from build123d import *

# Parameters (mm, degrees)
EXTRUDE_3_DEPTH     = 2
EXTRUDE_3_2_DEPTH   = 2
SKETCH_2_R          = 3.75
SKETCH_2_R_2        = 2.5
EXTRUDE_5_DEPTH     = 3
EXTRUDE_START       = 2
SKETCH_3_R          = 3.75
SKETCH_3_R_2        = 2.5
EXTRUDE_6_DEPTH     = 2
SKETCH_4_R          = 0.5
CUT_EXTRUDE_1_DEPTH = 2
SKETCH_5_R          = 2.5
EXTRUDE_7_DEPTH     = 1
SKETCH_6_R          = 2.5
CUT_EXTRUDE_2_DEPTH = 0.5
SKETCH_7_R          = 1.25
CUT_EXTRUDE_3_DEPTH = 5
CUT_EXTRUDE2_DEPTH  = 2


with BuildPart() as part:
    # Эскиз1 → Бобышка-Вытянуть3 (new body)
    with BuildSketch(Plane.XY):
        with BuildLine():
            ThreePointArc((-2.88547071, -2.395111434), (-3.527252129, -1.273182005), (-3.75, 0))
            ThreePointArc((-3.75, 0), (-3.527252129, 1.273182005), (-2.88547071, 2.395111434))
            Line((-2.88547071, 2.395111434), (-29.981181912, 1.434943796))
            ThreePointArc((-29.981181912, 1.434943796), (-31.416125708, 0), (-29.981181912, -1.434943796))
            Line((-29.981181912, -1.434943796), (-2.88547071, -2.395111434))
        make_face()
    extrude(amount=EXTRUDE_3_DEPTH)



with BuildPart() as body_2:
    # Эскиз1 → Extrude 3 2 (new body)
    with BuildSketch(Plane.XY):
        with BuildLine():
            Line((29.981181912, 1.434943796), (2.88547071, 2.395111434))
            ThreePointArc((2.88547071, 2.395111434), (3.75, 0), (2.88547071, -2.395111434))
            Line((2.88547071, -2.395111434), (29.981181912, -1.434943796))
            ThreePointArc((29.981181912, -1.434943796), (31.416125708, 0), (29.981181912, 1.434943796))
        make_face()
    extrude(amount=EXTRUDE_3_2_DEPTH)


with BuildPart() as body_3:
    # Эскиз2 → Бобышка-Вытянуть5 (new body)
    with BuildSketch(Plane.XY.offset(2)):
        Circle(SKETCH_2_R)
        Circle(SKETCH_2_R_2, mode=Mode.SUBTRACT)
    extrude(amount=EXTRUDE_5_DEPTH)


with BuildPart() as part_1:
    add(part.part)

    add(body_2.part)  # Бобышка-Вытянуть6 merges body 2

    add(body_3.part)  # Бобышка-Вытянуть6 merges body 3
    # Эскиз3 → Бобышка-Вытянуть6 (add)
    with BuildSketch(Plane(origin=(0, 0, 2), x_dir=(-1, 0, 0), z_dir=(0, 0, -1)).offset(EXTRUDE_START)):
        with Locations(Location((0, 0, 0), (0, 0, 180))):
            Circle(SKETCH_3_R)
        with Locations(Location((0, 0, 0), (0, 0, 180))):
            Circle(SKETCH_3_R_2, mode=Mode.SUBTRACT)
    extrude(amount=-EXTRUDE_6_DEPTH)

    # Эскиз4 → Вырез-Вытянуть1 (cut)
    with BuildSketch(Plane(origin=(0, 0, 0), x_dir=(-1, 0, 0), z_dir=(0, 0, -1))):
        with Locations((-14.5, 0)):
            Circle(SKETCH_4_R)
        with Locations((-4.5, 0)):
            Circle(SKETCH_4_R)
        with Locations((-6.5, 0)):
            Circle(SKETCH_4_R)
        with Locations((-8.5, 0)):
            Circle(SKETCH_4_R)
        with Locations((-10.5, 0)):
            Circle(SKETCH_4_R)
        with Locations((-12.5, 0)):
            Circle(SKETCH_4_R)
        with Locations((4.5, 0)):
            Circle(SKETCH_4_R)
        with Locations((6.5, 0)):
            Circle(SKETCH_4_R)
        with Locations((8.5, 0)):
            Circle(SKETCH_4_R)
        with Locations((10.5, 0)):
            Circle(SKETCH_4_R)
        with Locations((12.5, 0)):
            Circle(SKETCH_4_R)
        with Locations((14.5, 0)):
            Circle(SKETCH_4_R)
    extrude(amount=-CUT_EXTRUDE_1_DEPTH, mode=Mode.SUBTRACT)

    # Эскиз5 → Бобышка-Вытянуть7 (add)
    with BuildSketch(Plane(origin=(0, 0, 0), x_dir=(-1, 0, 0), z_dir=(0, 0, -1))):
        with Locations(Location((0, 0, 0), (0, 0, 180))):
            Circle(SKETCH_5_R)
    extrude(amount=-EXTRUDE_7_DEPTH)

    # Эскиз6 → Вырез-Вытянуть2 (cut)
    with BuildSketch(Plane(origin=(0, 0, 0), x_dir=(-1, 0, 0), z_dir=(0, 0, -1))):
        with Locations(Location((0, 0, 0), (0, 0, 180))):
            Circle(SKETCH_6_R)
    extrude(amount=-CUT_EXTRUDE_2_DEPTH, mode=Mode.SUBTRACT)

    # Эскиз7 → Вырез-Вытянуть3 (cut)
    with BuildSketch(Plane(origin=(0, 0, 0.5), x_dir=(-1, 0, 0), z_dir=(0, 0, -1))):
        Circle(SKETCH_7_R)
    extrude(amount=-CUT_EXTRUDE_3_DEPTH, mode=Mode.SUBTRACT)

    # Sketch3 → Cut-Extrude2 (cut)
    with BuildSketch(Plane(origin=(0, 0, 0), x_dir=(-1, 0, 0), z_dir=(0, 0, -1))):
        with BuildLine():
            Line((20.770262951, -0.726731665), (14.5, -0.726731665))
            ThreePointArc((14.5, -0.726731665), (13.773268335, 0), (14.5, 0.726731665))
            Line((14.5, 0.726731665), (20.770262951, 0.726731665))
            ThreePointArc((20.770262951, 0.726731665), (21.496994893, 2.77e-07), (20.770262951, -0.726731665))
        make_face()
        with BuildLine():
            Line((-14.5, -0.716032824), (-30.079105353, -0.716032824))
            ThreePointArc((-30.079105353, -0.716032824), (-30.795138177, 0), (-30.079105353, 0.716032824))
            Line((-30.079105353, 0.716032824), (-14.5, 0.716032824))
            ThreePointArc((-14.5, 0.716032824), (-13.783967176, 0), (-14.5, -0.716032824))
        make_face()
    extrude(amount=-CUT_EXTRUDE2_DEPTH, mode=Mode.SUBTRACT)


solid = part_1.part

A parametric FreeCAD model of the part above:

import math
import FreeCAD as App
import Part
import Sketcher

V = App.Vector

doc = App.newDocument("Part")
body = doc.addObject("PartDesign::Body", "Body")

# Sketch on XY plane
sketch1 = body.newObject("Sketcher::SketchObject", "Sketch")
sketch1.AttachmentSupport = (doc.getObject("XY_Plane"), [""])
sketch1.MapMode = "FlatFace"
sketch1.addGeometry(Part.ArcOfCircle(Part.Circle(V(0, 0, 0), V(0, 0, 1), 3.8), math.radians(180), math.radians(220)), False)
sketch1.addGeometry(Part.ArcOfCircle(Part.Circle(V(0, 0, 0), V(0, 0, 1), 3.8), math.radians(140), math.radians(180)), False)
sketch1.addGeometry(Part.LineSegment(V(-2.9, 2.4, 0), V(-30, 1.4, 0)), False)
sketch1.addGeometry(Part.ArcOfCircle(Part.Circle(V(-30, 0, 0), V(0, 0, 1), 1.4), math.radians(90), math.radians(270)), False)
sketch1.addGeometry(Part.LineSegment(V(-30, -1.4, 0), V(-2.9, -2.4, 0)), False)
sketch1.addConstraint(Sketcher.Constraint("Tangent", 0, 1, 1, 2))
sketch1.addConstraint(Sketcher.Constraint("Coincident", 1, 1, 2, 1))
sketch1.addConstraint(Sketcher.Constraint("Coincident", 2, 2, 3, 1))
sketch1.addConstraint(Sketcher.Constraint("Coincident", 3, 2, 4, 1))
sketch1.addConstraint(Sketcher.Constraint("Coincident", 4, 2, 0, 2))
sketch1.addConstraint(Sketcher.Constraint("Coincident", 0, 3, -1, 1))
sketch1.addConstraint(Sketcher.Constraint("Equal", 0, 1))
sketch1.addConstraint(Sketcher.Constraint("Symmetric", 2, 2, 3, 2, -1))
sketch1.addConstraint(Sketcher.Constraint("PointOnObject", 0, 1, -1))
sketch1.addConstraint(Sketcher.Constraint("Vertical", 3, 3, 2, 2))
sketch1.addConstraint(Sketcher.Constraint("Vertical", 1, 1, 4, 2))
sketch1.addConstraint(Sketcher.Constraint("Radius", 0, 3.75))
sketch1.addConstraint(Sketcher.Constraint("Radius", 3, 1.434944))
sketch1.addConstraint(Sketcher.Constraint("Distance", 2, 27.112718))
sketch1.addConstraint(Sketcher.Constraint("DistanceX", 3, 3, -1, 1, 29.981182))
pad1 = body.newObject("PartDesign::Pad", "Pad")
pad1.Profile = sketch1
pad1.Length = 2
body2 = doc.addObject("PartDesign::Body", "Body001")

# Sketch on XY plane
sketch2 = body2.newObject("Sketcher::SketchObject", "Sketch001")
sketch2.AttachmentSupport = (doc.getObject("XY_Plane001"), [""])
sketch2.MapMode = "FlatFace"
sketch2.addGeometry(Part.LineSegment(V(30, 1.4, 0), V(2.9, 2.4, 0)), False)
sketch2.addGeometry(Part.ArcOfCircle(Part.Circle(V(0, 0, 0), V(0, 0, 1), 3.8), math.radians(-40), math.radians(40)), False)
sketch2.addGeometry(Part.LineSegment(V(2.9, -2.4, 0), V(30, -1.4, 0)), False)
sketch2.addGeometry(Part.ArcOfCircle(Part.Circle(V(30, 0, 0), V(0, 0, 1), 1.4), math.radians(-90), math.radians(90)), False)
sketch2.addConstraint(Sketcher.Constraint("Coincident", 0, 2, 1, 2))
sketch2.addConstraint(Sketcher.Constraint("Coincident", 1, 1, 2, 1))
sketch2.addConstraint(Sketcher.Constraint("Coincident", 2, 2, 3, 1))
sketch2.addConstraint(Sketcher.Constraint("Coincident", 3, 2, 0, 1))
sketch2.addConstraint(Sketcher.Constraint("Coincident", 1, 3, -1, 1))
sketch2.addConstraint(Sketcher.Constraint("Symmetric", 2, 2, 3, 2, -1))
sketch2.addConstraint(Sketcher.Constraint("Vertical", 0, 2, 1, 1))
sketch2.addConstraint(Sketcher.Constraint("Vertical", 3, 3, 2, 2))
sketch2.addConstraint(Sketcher.Constraint("Radius", 1, 3.75))
sketch2.addConstraint(Sketcher.Constraint("Radius", 3, 1.434944))
sketch2.addConstraint(Sketcher.Constraint("Distance", 0, 27.112718))
sketch2.addConstraint(Sketcher.Constraint("DistanceX", -1, 1, 3, 3, 29.981182))
pad2 = body2.newObject("PartDesign::Pad", "Pad001")
pad2.Profile = sketch2
pad2.Length = 2
body3 = doc.addObject("PartDesign::Body", "Body002")

# Sketch on XY plane
sketch3 = body3.newObject("Sketcher::SketchObject", "Sketch002")
sketch3.AttachmentSupport = (doc.getObject("XY_Plane002"), [""])
sketch3.MapMode = "FlatFace"
sketch3.AttachmentOffset = App.Placement(V(0, 0, 2), App.Rotation())
sketch3.addGeometry(Part.Circle(V(0, 0, 0), V(0, 0, 1), 3.8), False)
sketch3.addGeometry(Part.Circle(V(0, 0, 0), V(0, 0, 1), 2.5), False)
sketch3.addConstraint(Sketcher.Constraint("Coincident", 0, 3, -1, 1))
sketch3.addConstraint(Sketcher.Constraint("Coincident", 1, 3, -1, 1))
sketch3.addConstraint(Sketcher.Constraint("Diameter", 1, 5.0))
sketch3.addConstraint(Sketcher.Constraint("Diameter", 0, 7.5))
pad3 = body3.newObject("PartDesign::Pad", "Pad002")
pad3.Profile = sketch3
pad3.Length = 3
body.AllowCompound = True
doc.recompute()

boolean = body.newObject("PartDesign::Boolean", "Boolean")
boolean.Type = "Fuse"
boolean.addObjects([body2])
doc.recompute()

boolean2 = body.newObject("PartDesign::Boolean", "Boolean001")
boolean2.Type = "Fuse"
boolean2.addObjects([body3])

# Sketch on XY plane
sketch4 = body.newObject("Sketcher::SketchObject", "Sketch003")
sketch4.AttachmentSupport = (doc.getObject("XY_Plane"), [""])
sketch4.MapMode = "FlatFace"
sketch4.addGeometry(Part.Circle(V(0, 0, 0), V(0, 0, 1), 3.8), False)
sketch4.addGeometry(Part.Circle(V(0, 0, 0), V(0, 0, 1), 2.5), False)
sketch4.addConstraint(Sketcher.Constraint("Coincident", 0, 3, -1, 1))
sketch4.addConstraint(Sketcher.Constraint("Coincident", 1, 3, -1, 1))
sketch4.addConstraint(Sketcher.Constraint("Diameter", 1, 5.0))
sketch4.addConstraint(Sketcher.Constraint("Diameter", 0, 7.5))
pad4 = body.newObject("PartDesign::Pad", "Pad003")
pad4.Profile = sketch4
pad4.Length = 2

# Sketch on XY plane
sketch5 = body.newObject("Sketcher::SketchObject", "Sketch004")
sketch5.AttachmentSupport = (doc.getObject("XY_Plane"), [""])
sketch5.MapMode = "FlatFace"
sketch5.addGeometry(Part.Circle(V(14.5, 0, 0), V(0, 0, 1), 0.5), False)
sketch5.addGeometry(Part.Circle(V(4.5, 0, 0), V(0, 0, 1), 0.5), False)
sketch5.addGeometry(Part.Circle(V(6.5, 0, 0), V(0, 0, 1), 0.5), False)
sketch5.addGeometry(Part.Circle(V(8.5, 0, 0), V(0, 0, 1), 0.5), False)
sketch5.addGeometry(Part.Circle(V(10.5, 0, 0), V(0, 0, 1), 0.5), False)
sketch5.addGeometry(Part.Circle(V(12.5, 0, 0), V(0, 0, 1), 0.5), False)
sketch5.addGeometry(Part.Circle(V(-4.5, 0, 0), V(0, 0, 1), 0.5), False)
sketch5.addGeometry(Part.Circle(V(-6.5, 0, 0), V(0, 0, 1), 0.5), False)
sketch5.addGeometry(Part.Circle(V(-8.5, 0, 0), V(0, 0, 1), 0.5), False)
sketch5.addGeometry(Part.Circle(V(-10.5, 0, 0), V(0, 0, 1), 0.5), False)
sketch5.addGeometry(Part.Circle(V(-12.5, 0, 0), V(0, 0, 1), 0.5), False)
sketch5.addGeometry(Part.Circle(V(-14.5, 0, 0), V(0, 0, 1), 0.5), False)
sketch5.addConstraint(Sketcher.Constraint("Equal", 0, 1))
sketch5.addConstraint(Sketcher.Constraint("Equal", 1, 2))
sketch5.addConstraint(Sketcher.Constraint("Equal", 2, 3))
sketch5.addConstraint(Sketcher.Constraint("Equal", 3, 4))
sketch5.addConstraint(Sketcher.Constraint("Equal", 4, 5))
sketch5.addConstraint(Sketcher.Constraint("Equal", 5, 6))
sketch5.addConstraint(Sketcher.Constraint("Equal", 6, 7))
sketch5.addConstraint(Sketcher.Constraint("Equal", 7, 8))
sketch5.addConstraint(Sketcher.Constraint("Equal", 8, 9))
sketch5.addConstraint(Sketcher.Constraint("Equal", 9, 10))
sketch5.addConstraint(Sketcher.Constraint("Equal", 10, 11))
sketch5.addConstraint(Sketcher.Constraint("Symmetric", 1, 3, 6, 3, -1, 1))
sketch5.addConstraint(Sketcher.Constraint("Symmetric", 2, 3, 7, 3, -1, 1))
sketch5.addConstraint(Sketcher.Constraint("Symmetric", 3, 3, 8, 3, -1, 1))
sketch5.addConstraint(Sketcher.Constraint("Symmetric", 4, 3, 9, 3, -1, 1))
sketch5.addConstraint(Sketcher.Constraint("Symmetric", 5, 3, 10, 3, -1, 1))
sketch5.addConstraint(Sketcher.Constraint("Symmetric", 0, 3, 11, 3, -1, 1))
sketch5.addConstraint(Sketcher.Constraint("PointOnObject", 0, 3, -1))
sketch5.addConstraint(Sketcher.Constraint("PointOnObject", 1, 3, -1))
sketch5.addConstraint(Sketcher.Constraint("PointOnObject", 2, 3, -1))
sketch5.addConstraint(Sketcher.Constraint("PointOnObject", 3, 3, -1))
sketch5.addConstraint(Sketcher.Constraint("PointOnObject", 4, 3, -1))
sketch5.addConstraint(Sketcher.Constraint("PointOnObject", 5, 3, -1))
sketch5.addConstraint(Sketcher.Constraint("Diameter", 0, 1.0))
sketch5.addConstraint(Sketcher.Constraint("DistanceX", 1, 3, 0, 3, 10.0))
sketch5.addConstraint(Sketcher.Constraint("DistanceX", 1, 3, 2, 3, 2.0))
sketch5.addConstraint(Sketcher.Constraint("DistanceX", 2, 3, 3, 3, 2.0))
sketch5.addConstraint(Sketcher.Constraint("DistanceX", 3, 3, 4, 3, 2.0))
sketch5.addConstraint(Sketcher.Constraint("DistanceX", 5, 3, 0, 3, 2.0))
sketch5.addConstraint(Sketcher.Constraint("DistanceX", 6, 3, 1, 3, 9.0))
pocket1 = body.newObject("PartDesign::Pocket", "Pocket")
pocket1.Profile = sketch5
pocket1.Length = 2
pocket1.Reversed = True

# Sketch on XY plane
sketch6 = body.newObject("Sketcher::SketchObject", "Sketch005")
sketch6.AttachmentSupport = (doc.getObject("XY_Plane"), [""])
sketch6.MapMode = "FlatFace"
sketch6.addGeometry(Part.Circle(V(0, 0, 0), V(0, 0, 1), 2.5), False)
sketch6.addConstraint(Sketcher.Constraint("Coincident", 0, 3, -1, 1))
sketch6.addConstraint(Sketcher.Constraint("Diameter", 0, 5.0))
pad5 = body.newObject("PartDesign::Pad", "Pad004")
pad5.Profile = sketch6
pad5.Length = 1

# Sketch on XY plane
sketch7 = body.newObject("Sketcher::SketchObject", "Sketch006")
sketch7.AttachmentSupport = (doc.getObject("XY_Plane"), [""])
sketch7.MapMode = "FlatFace"
sketch7.addGeometry(Part.Circle(V(0, 0, 0), V(0, 0, 1), 2.5), False)
sketch7.addConstraint(Sketcher.Constraint("Coincident", 0, 3, -1, 1))
sketch7.addConstraint(Sketcher.Constraint("Diameter", 0, 5.0))
pocket2 = body.newObject("PartDesign::Pocket", "Pocket001")
pocket2.Profile = sketch7
pocket2.Length = 0.5
pocket2.Reversed = True

# Sketch on XY plane
sketch8 = body.newObject("Sketcher::SketchObject", "Sketch007")
sketch8.AttachmentSupport = (doc.getObject("XY_Plane"), [""])
sketch8.MapMode = "FlatFace"
sketch8.AttachmentOffset = App.Placement(V(0, 0, 0.5), App.Rotation())
sketch8.addGeometry(Part.Circle(V(0, 0, 0), V(0, 0, 1), 1.2), False)
sketch8.addConstraint(Sketcher.Constraint("Coincident", 0, 3, -1, 1))
sketch8.addConstraint(Sketcher.Constraint("Diameter", 0, 2.5))
pocket3 = body.newObject("PartDesign::Pocket", "Pocket002")
pocket3.Profile = sketch8
pocket3.Length = 5
pocket3.Reversed = True

# Sketch on XY plane
sketch9 = body.newObject("Sketcher::SketchObject", "Sketch008")
sketch9.AttachmentSupport = (doc.getObject("XY_Plane"), [""])
sketch9.MapMode = "FlatFace"
sketch9.addGeometry(Part.LineSegment(V(-14.5, -0.7, 0), V(-20.8, -0.7, 0)), False)
sketch9.addGeometry(Part.ArcOfCircle(Part.Circle(V(-20.8, 0, 0), V(0, 0, 1), 0.7), math.radians(90), math.radians(270)), False)
sketch9.addGeometry(Part.LineSegment(V(-20.8, 0.7, 0), V(-14.5, 0.7, 0)), False)
sketch9.addGeometry(Part.ArcOfCircle(Part.Circle(V(-14.5, 0, 0), V(0, 0, 1), 0.7), math.radians(-90), math.radians(90)), False)
sketch9.addGeometry(Part.LineSegment(V(30.1, -0.7, 0), V(14.5, -0.7, 0)), False)
sketch9.addGeometry(Part.ArcOfCircle(Part.Circle(V(14.5, 0, 0), V(0, 0, 1), 0.7), math.radians(90), math.radians(270)), False)
sketch9.addGeometry(Part.LineSegment(V(14.5, 0.7, 0), V(30.1, 0.7, 0)), False)
sketch9.addGeometry(Part.ArcOfCircle(Part.Circle(V(30.1, 0, 0), V(0, 0, 1), 0.7), math.radians(-90), math.radians(90)), False)
sketch9.addConstraint(Sketcher.Constraint("Tangent", 0, 2, 1, 2))
sketch9.addConstraint(Sketcher.Constraint("Tangent", 1, 1, 2, 1))
sketch9.addConstraint(Sketcher.Constraint("Tangent", 2, 2, 3, 2))
sketch9.addConstraint(Sketcher.Constraint("Tangent", 3, 1, 0, 1))
sketch9.addConstraint(Sketcher.Constraint("Tangent", 4, 2, 5, 2))
sketch9.addConstraint(Sketcher.Constraint("Tangent", 5, 1, 6, 1))
sketch9.addConstraint(Sketcher.Constraint("Tangent", 6, 2, 7, 2))
sketch9.addConstraint(Sketcher.Constraint("Tangent", 7, 1, 4, 1))
sketch9.addConstraint(Sketcher.Constraint("Horizontal", 0))
sketch9.addConstraint(Sketcher.Constraint("Horizontal", 2))
sketch9.addConstraint(Sketcher.Constraint("Horizontal", 4))
sketch9.addConstraint(Sketcher.Constraint("Horizontal", 6))
sketch9.addConstraint(Sketcher.Constraint("Symmetric", 3, 3, 5, 3, -1, 1))
sketch9.addConstraint(Sketcher.Constraint("PointOnObject", 1, 3, -1))
sketch9.addConstraint(Sketcher.Constraint("DistanceX", 3, 3, 5, 3, 29.0))
sketch9.addConstraint(Sketcher.Constraint("Radius", 1, 0.726732))
sketch9.addConstraint(Sketcher.Constraint("Radius", 5, 0.716033))
sketch9.addConstraint(Sketcher.Constraint("DistanceX", 0, 2, 0, 1, 6.270263))
sketch9.addConstraint(Sketcher.Constraint("DistanceX", 4, 2, 4, 1, 15.579105))
pocket4 = body.newObject("PartDesign::Pocket", "Pocket003")
pocket4.Profile = sketch9
pocket4.Length = 2
pocket4.Reversed = True

doc.recompute()
